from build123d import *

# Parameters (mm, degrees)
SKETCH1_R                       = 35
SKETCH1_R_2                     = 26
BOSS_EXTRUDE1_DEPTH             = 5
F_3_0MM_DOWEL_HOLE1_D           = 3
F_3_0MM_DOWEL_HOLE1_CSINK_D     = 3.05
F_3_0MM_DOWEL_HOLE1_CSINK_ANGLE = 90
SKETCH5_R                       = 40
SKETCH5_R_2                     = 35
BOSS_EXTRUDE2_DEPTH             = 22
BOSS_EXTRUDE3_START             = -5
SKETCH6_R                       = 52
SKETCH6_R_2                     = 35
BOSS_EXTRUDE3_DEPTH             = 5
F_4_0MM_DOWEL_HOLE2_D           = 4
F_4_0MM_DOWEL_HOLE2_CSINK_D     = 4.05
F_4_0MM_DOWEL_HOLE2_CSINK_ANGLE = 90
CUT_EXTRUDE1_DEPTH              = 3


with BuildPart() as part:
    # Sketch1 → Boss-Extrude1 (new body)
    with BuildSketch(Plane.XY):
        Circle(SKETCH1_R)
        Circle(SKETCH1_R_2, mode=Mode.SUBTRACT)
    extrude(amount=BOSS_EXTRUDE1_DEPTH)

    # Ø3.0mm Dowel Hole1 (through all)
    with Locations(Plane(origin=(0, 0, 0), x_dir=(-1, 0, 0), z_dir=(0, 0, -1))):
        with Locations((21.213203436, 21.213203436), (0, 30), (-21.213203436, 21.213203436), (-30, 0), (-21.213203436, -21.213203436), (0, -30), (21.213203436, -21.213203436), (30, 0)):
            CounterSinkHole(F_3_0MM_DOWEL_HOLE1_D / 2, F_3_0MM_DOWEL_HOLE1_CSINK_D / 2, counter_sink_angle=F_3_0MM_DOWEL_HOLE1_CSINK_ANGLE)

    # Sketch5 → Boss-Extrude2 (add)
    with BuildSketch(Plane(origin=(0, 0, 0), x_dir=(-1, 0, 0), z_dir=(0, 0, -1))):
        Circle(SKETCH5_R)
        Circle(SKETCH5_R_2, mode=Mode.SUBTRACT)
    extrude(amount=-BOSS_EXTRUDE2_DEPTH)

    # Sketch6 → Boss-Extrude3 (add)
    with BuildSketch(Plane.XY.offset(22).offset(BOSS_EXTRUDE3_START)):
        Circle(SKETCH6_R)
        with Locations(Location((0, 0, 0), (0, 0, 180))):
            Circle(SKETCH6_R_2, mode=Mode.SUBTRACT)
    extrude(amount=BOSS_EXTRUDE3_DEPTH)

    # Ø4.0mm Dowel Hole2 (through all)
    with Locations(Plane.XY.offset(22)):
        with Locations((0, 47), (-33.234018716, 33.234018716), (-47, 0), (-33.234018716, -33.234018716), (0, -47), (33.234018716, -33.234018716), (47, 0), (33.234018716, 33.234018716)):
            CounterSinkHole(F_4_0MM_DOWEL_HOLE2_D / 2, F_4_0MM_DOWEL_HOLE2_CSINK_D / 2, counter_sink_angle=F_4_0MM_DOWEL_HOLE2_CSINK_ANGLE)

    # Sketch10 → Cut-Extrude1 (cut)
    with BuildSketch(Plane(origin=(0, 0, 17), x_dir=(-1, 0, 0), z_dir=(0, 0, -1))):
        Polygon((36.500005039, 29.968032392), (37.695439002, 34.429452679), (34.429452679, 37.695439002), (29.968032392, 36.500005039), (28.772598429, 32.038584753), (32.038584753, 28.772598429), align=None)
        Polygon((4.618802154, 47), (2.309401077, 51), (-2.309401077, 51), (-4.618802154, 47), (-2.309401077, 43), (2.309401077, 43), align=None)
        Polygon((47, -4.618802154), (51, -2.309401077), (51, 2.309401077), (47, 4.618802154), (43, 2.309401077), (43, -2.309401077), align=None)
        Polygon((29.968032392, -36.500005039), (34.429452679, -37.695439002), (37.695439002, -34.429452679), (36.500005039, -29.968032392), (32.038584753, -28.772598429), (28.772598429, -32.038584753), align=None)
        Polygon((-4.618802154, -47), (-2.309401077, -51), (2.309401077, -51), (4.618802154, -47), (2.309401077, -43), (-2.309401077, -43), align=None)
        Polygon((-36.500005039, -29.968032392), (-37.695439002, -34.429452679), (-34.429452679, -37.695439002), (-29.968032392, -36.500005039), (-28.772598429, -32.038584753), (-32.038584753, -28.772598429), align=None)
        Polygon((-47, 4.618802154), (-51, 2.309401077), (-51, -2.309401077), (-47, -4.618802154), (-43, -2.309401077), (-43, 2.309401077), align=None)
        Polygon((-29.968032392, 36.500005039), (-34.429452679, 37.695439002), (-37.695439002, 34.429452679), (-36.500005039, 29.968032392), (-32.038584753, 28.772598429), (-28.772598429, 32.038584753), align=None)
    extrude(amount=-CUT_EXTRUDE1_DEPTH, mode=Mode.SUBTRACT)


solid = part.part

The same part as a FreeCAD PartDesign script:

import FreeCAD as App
import Part
import Sketcher
Q = App.Units.Quantity

doc = App.newDocument("Part")
params = doc.addObject("Spreadsheet::Sheet", "Params")
for row, (alias, value) in enumerate([
    ("sketch1_diameter", "70 mm"),
    ("sketch1_diameter2", "52 mm"),
    ("pad1_length", "5 mm"),
    ("sketch2_diameter", "3 mm"),
    ("hole_diameter", "3 mm"),
    ("hole_csink_diameter", "3.05 mm"),
    ("sketch3_diameter", "80 mm"),
    ("sketch3_diameter2", "70 mm"),
    ("pad2_length", "22 mm"),
    ("sketch4_diameter", "104 mm"),
    ("sketch4_diameter2", "70 mm"),
    ("pad3_length", "5 mm"),
    ("sketch5_diameter", "4 mm"),
    ("hole2_diameter", "4 mm"),
    ("hole2_csink_diameter", "4.05 mm"),
    ("pocket1_length", "3 mm"),
], start=1):
    params.set(f"A{row}", alias)
    params.set(f"B{row}", "=" + value)
    params.setAlias(f"B{row}", alias)

body = doc.addObject("PartDesign::Body", "Body")

# Sketch on XY plane
sketch1 = body.newObject("Sketcher::SketchObject", "Sketch")
sketch1.AttachmentSupport = (doc.getObject("XY_Plane"), [""])
sketch1.MapMode = "FlatFace"
sketch1.addGeometry(Part.Circle(App.Vector(0, 0, 0), App.Vector(0, 0, 1), 35), False)
sketch1.addGeometry(Part.Circle(App.Vector(0, 0, 0), App.Vector(0, 0, 1), 26), False)
sketch1.addConstraint(Sketcher.Constraint("Coincident", 0, 3, -1, 1))
sketch1.addConstraint(Sketcher.Constraint("Coincident", 1, 3, -1, 1))
sketch1.addConstraint(Sketcher.Constraint("Diameter", 0, Q("70 mm")))
sketch1.addConstraint(Sketcher.Constraint("Diameter", 1, Q("52 mm")))
sketch1.setExpression("Constraints[2]", "Params.sketch1_diameter")
sketch1.setExpression("Constraints[3]", "Params.sketch1_diameter2")
pad1 = body.newObject("PartDesign::Pad", "Pad")
pad1.Profile = sketch1
pad1.setExpression("Length", "Params.pad1_length")

# Sketch on XY plane
sketch2 = body.newObject("Sketcher::SketchObject", "Sketch001")
sketch2.AttachmentSupport = (doc.getObject("XY_Plane"), [""])
sketch2.MapMode = "FlatFace"
sketch2.addGeometry(Part.Circle(App.Vector(-21.2, 21.2, 0), App.Vector(0, 0, 1), 1.5), False)
sketch2.addGeometry(Part.Circle(App.Vector(0, 30, 0), App.Vector(0, 0, 1), 1.5), False)
sketch2.addGeometry(Part.Circle(App.Vector(21.2, 21.2, 0), App.Vector(0, 0, 1), 1.5), False)
sketch2.addGeometry(Part.Circle(App.Vector(30, 0, 0), App.Vector(0, 0, 1), 1.5), False)
sketch2.addGeometry(Part.Circle(App.Vector(21.2, -21.2, 0), App.Vector(0, 0, 1), 1.5), False)
sketch2.addGeometry(Part.Circle(App.Vector(0, -30, 0), App.Vector(0, 0, 1), 1.5), False)
sketch2.addGeometry(Part.Circle(App.Vector(-21.2, -21.2, 0), App.Vector(0, 0, 1), 1.5), False)
sketch2.addGeometry(Part.Circle(App.Vector(-30, 0, 0), App.Vector(0, 0, 1), 1.5), False)
sketch2.addConstraint(Sketcher.Constraint("Equal", 0, 1))
sketch2.addConstraint(Sketcher.Constraint("Equal", 1, 2))
sketch2.addConstraint(Sketcher.Constraint("Equal", 2, 3))
sketch2.addConstraint(Sketcher.Constraint("Equal", 3, 4))
sketch2.addConstraint(Sketcher.Constraint("Equal", 4, 5))
sketch2.addConstraint(Sketcher.Constraint("Equal", 5, 6))
sketch2.addConstraint(Sketcher.Constraint("Equal", 6, 7))
sketch2.addConstraint(Sketcher.Constraint("Symmetric", 0, 3, 4, 3, -1, 1))
sketch2.addConstraint(Sketcher.Constraint("Symmetric", 1, 3, 5, 3, -1, 1))
sketch2.addConstraint(Sketcher.Constraint("Symmetric", 2, 3, 6, 3, -1, 1))
sketch2.addConstraint(Sketcher.Constraint("Symmetric", 3, 3, 7, 3, -1, 1))
sketch2.addConstraint(Sketcher.Constraint("Symmetric", 0, 3, 2, 3, -2))
sketch2.addConstraint(Sketcher.Constraint("PointOnObject", 1, 3, -2))
sketch2.addConstraint(Sketcher.Constraint("PointOnObject", 3, 3, -1))
sketch2.addConstraint(Sketcher.Constraint("Diameter", 0, Q("3 mm")))
sketch2.addConstraint(Sketcher.Constraint("DistanceY", -1, 1, 1, 3, Q("30 mm")))
sketch2.addConstraint(Sketcher.Constraint("DistanceX", -1, 1, 3, 3, Q("30 mm")))
sketch2.addConstraint(Sketcher.Constraint("DistanceX", 0, 3, -1, 1, Q("21.213203 mm")))
sketch2.addConstraint(Sketcher.Constraint("DistanceY", -1, 1, 0, 3, Q("21.213203 mm")))
sketch2.setExpression("Constraints[14]", "Params.sketch2_diameter")
doc.recompute()
hole = body.newObject("PartDesign::Hole", "Hole")
hole.Profile = sketch2
hole.ThreadType = "None"
hole.setExpression("Diameter", "Params.hole_diameter")
hole.DepthType = "ThroughAll"
hole.HoleCutType = "Countersink"
hole.setExpression("HoleCutDiameter", "Params.hole_csink_diameter")
hole.HoleCutCountersinkAngle = 90
hole.Reversed = True

# Sketch on XY plane
sketch3 = body.newObject("Sketcher::SketchObject", "Sketch002")
sketch3.AttachmentSupport = (doc.getObject("XY_Plane"), [""])
sketch3.MapMode = "FlatFace"
sketch3.addGeometry(Part.Circle(App.Vector(0, 0, 0), App.Vector(0, 0, 1), 40), False)
sketch3.addGeometry(Part.Circle(App.Vector(0, 0, 0), App.Vector(0, 0, 1), 35), False)
sketch3.addConstraint(Sketcher.Constraint("Coincident", 0, 3, -1, 1))
sketch3.addConstraint(Sketcher.Constraint("Coincident", 1, 3, -1, 1))
sketch3.addConstraint(Sketcher.Constraint("Diameter", 0, Q("80 mm")))
sketch3.addConstraint(Sketcher.Constraint("Diameter", 1, Q("70 mm")))
sketch3.setExpression("Constraints[2]", "Params.sketch3_diameter")
sketch3.setExpression("Constraints[3]", "Params.sketch3_diameter2")
pad2 = body.newObject("PartDesign::Pad", "Pad001")
pad2.Profile = sketch3
pad2.setExpression("Length", "Params.pad2_length")

# Sketch on XY plane
sketch4 = body.newObject("Sketcher::SketchObject", "Sketch003")
sketch4.AttachmentSupport = (doc.getObject("XY_Plane"), [""])
sketch4.MapMode = "FlatFace"
sketch4.AttachmentOffset = App.Placement(App.Vector(0, 0, 17), App.Rotation())
sketch4.addGeometry(Part.Circle(App.Vector(0, 0, 0), App.Vector(0, 0, 1), 52), False)
sketch4.addGeometry(Part.Circle(App.Vector(0, 0, 0), App.Vector(0, 0, 1), 35), False)
sketch4.addConstraint(Sketcher.Constraint("Coincident", 0, 3, -1, 1))
sketch4.addConstraint(Sketcher.Constraint("Coincident", 1, 3, -1, 1))
sketch4.addConstraint(Sketcher.Constraint("Diameter", 0, Q("104 mm")))
sketch4.addConstraint(Sketcher.Constraint("Diameter", 1, Q("70 mm")))
sketch4.setExpression("Constraints[2]", "Params.sketch4_diameter")
sketch4.setExpression("Constraints[3]", "Params.sketch4_diameter2")
pad3 = body.newObject("PartDesign::Pad", "Pad002")
pad3.Profile = sketch4
pad3.setExpression("Length", "Params.pad3_length")

# Sketch on XY plane
sketch5 = body.newObject("Sketcher::SketchObject", "Sketch004")
sketch5.AttachmentSupport = (doc.getObject("XY_Plane"), [""])
sketch5.MapMode = "FlatFace"
sketch5.AttachmentOffset = App.Placement(App.Vector(0, 0, 22), App.Rotation())
sketch5.addGeometry(Part.Circle(App.Vector(0, 47, 0), App.Vector(0, 0, 1), 2), False)
sketch5.addGeometry(Part.Circle(App.Vector(-33.2, 33.2, 0), App.Vector(0, 0, 1), 2), False)
sketch5.addGeometry(Part.Circle(App.Vector(-47, 0, 0), App.Vector(0, 0, 1), 2), False)
sketch5.addGeometry(Part.Circle(App.Vector(-33.2, -33.2, 0), App.Vector(0, 0, 1), 2), False)
sketch5.addGeometry(Part.Circle(App.Vector(0, -47, 0), App.Vector(0, 0, 1), 2), False)
sketch5.addGeometry(Part.Circle(App.Vector(33.2, -33.2, 0), App.Vector(0, 0, 1), 2), False)
sketch5.addGeometry(Part.Circle(App.Vector(47, 0, 0), App.Vector(0, 0, 1), 2), False)
sketch5.addGeometry(Part.Circle(App.Vector(33.2, 33.2, 0), App.Vector(0, 0, 1), 2), False)
sketch5.addConstraint(Sketcher.Constraint("Equal", 0, 1))
sketch5.addConstraint(Sketcher.Constraint("Equal", 1, 2))
sketch5.addConstraint(Sketcher.Constraint("Equal", 2, 3))
sketch5.addConstraint(Sketcher.Constraint("Equal", 3, 4))
sketch5.addConstraint(Sketcher.Constraint("Equal", 4, 5))
sketch5.addConstraint(Sketcher.Constraint("Equal", 5, 6))
sketch5.addConstraint(Sketcher.Constraint("Equal", 6, 7))
sketch5.addConstraint(Sketcher.Constraint("Symmetric", 0, 3, 4, 3, -1, 1))
sketch5.addConstraint(Sketcher.Constraint("Symmetric", 1, 3, 5, 3, -1, 1))
sketch5.addConstraint(Sketcher.Constraint("Symmetric", 2, 3, 6, 3, -1, 1))
sketch5.addConstraint(Sketcher.Constraint("Symmetric", 3, 3, 7, 3, -1, 1))
sketch5.addConstraint(Sketcher.Constraint("Symmetric", 3, 3, 5, 3, -2))
sketch5.addConstraint(Sketcher.Constraint("PointOnObject", 0, 3, -2))
sketch5.addConstraint(Sketcher.Constraint("PointOnObject", 2, 3, -1))
sketch5.addConstraint(Sketcher.Constraint("Diameter", 0, Q("4 mm")))
sketch5.addConstraint(Sketcher.Constraint("DistanceY", -1, 1, 0, 3, Q("47 mm")))
sketch5.addConstraint(Sketcher.Constraint("DistanceX", 2, 3, -1, 1, Q("47 mm")))
sketch5.addConstraint(Sketcher.Constraint("DistanceX", 1, 3, -1, 1, Q("33.234019 mm")))
sketch5.addConstraint(Sketcher.Constraint("DistanceY", -1, 1, 1, 3, Q("33.234019 mm")))
sketch5.setExpression("Constraints[14]", "Params.sketch5_diameter")
doc.recompute()
hole2 = body.newObject("PartDesign::Hole", "Hole001")
hole2.Profile = sketch5
hole2.ThreadType = "None"
hole2.setExpression("Diameter", "Params.hole2_diameter")
hole2.DepthType = "ThroughAll"
hole2.HoleCutType = "Countersink"
hole2.setExpression("HoleCutDiameter", "Params.hole2_csink_diameter")
hole2.HoleCutCountersinkAngle = 90

# Sketch on XY plane
sketch6 = body.newObject("Sketcher::SketchObject", "Sketch005")
sketch6.AttachmentSupport = (doc.getObject("XY_Plane"), [""])
sketch6.MapMode = "FlatFace"
sketch6.AttachmentOffset = App.Placement(App.Vector(0, 0, 17), App.Rotation())
sketch6.addGeometry(Part.LineSegment(App.Vector(-36.5, 30, 0), App.Vector(-37.7, 34.4, 0)), False)
sketch6.addGeometry(Part.LineSegment(App.Vector(-37.7, 34.4, 0), App.Vector(-34.4, 37.7, 0)), False)
sketch6.addGeometry(Part.LineSegment(App.Vector(-34.4, 37.7, 0), App.Vector(-30, 36.5, 0)), False)
sketch6.addGeometry(Part.LineSegment(App.Vector(-30, 36.5, 0), App.Vector(-28.8, 32, 0)), False)
sketch6.addGeometry(Part.LineSegment(App.Vector(-28.8, 32, 0), App.Vector(-32, 28.8, 0)), False)
sketch6.addGeometry(Part.LineSegment(App.Vector(-32, 28.8, 0), App.Vector(-36.5, 30, 0)), False)
sketch6.addGeometry(Part.LineSegment(App.Vector(-4.6, 47, 0), App.Vector(-2.3, 51, 0)), False)
sketch6.addGeometry(Part.LineSegment(App.Vector(-2.3, 51, 0), App.Vector(2.3, 51, 0)), False)
sketch6.addGeometry(Part.LineSegment(App.Vector(2.3, 51, 0), App.Vector(4.6, 47, 0)), False)
sketch6.addGeometry(Part.LineSegment(App.Vector(4.6, 47, 0), App.Vector(2.3, 43, 0)), False)
sketch6.addGeometry(Part.LineSegment(App.Vector(2.3, 43, 0), App.Vector(-2.3, 43, 0)), False)
sketch6.addGeometry(Part.LineSegment(App.Vector(-2.3, 43, 0), App.Vector(-4.6, 47, 0)), False)
sketch6.addGeometry(Part.LineSegment(App.Vector(-47, -4.6, 0), App.Vector(-51, -2.3, 0)), False)
sketch6.addGeometry(Part.LineSegment(App.Vector(-51, -2.3, 0), App.Vector(-51, 2.3, 0)), False)
sketch6.addGeometry(Part.LineSegment(App.Vector(-51, 2.3, 0), App.Vector(-47, 4.6, 0)), False)
sketch6.addGeometry(Part.LineSegment(App.Vector(-47, 4.6, 0), App.Vector(-43, 2.3, 0)), False)
sketch6.addGeometry(Part.LineSegment(App.Vector(-43, 2.3, 0), App.Vector(-43, -2.3, 0)), False)
sketch6.addGeometry(Part.LineSegment(App.Vector(-43, -2.3, 0), App.Vector(-47, -4.6, 0)), False)
sketch6.addGeometry(Part.LineSegment(App.Vector(-30, -36.5, 0), App.Vector(-34.4, -37.7, 0)), False)
sketch6.addGeometry(Part.LineSegment(App.Vector(-34.4, -37.7, 0), App.Vector(-37.7, -34.4, 0)), False)
sketch6.addGeometry(Part.LineSegment(App.Vector(-37.7, -34.4, 0), App.Vector(-36.5, -30, 0)), False)
sketch6.addGeometry(Part.LineSegment(App.Vector(-36.5, -30, 0), App.Vector(-32, -28.8, 0)), False)
sketch6.addGeometry(Part.LineSegment(App.Vector(-32, -28.8, 0), App.Vector(-28.8, -32, 0)), False)
sketch6.addGeometry(Part.LineSegment(App.Vector(-28.8, -32, 0), App.Vector(-30, -36.5, 0)), False)
sketch6.addGeometry(Part.LineSegment(App.Vector(4.6, -47, 0), App.Vector(2.3, -51, 0)), False)
sketch6.addGeometry(Part.LineSegment(App.Vector(2.3, -51, 0), App.Vector(-2.3, -51, 0)), False)
sketch6.addGeometry(Part.LineSegment(App.Vector(-2.3, -51, 0), App.Vector(-4.6, -47, 0)), False)
sketch6.addGeometry(Part.LineSegment(App.Vector(-4.6, -47, 0), App.Vector(-2.3, -43, 0)), False)
sketch6.addGeometry(Part.LineSegment(App.Vector(-2.3, -43, 0), App.Vector(2.3, -43, 0)), False)
sketch6.addGeometry(Part.LineSegment(App.Vector(2.3, -43, 0), App.Vector(4.6, -47, 0)), False)
sketch6.addGeometry(Part.LineSegment(App.Vector(36.5, -30, 0), App.Vector(37.7, -34.4, 0)), False)
sketch6.addGeometry(Part.LineSegment(App.Vector(37.7, -34.4, 0), App.Vector(34.4, -37.7, 0)), False)
sketch6.addGeometry(Part.LineSegment(App.Vector(34.4, -37.7, 0), App.Vector(30, -36.5, 0)), False)
sketch6.addGeometry(Part.LineSegment(App.Vector(30, -36.5, 0), App.Vector(28.8, -32, 0)), False)
sketch6.addGeometry(Part.LineSegment(App.Vector(28.8, -32, 0), App.Vector(32, -28.8, 0)), False)
sketch6.addGeometry(Part.LineSegment(App.Vector(32, -28.8, 0), App.Vector(36.5, -30, 0)), False)
sketch6.addGeometry(Part.LineSegment(App.Vector(47, 4.6, 0), App.Vector(51, 2.3, 0)), False)
sketch6.addGeometry(Part.LineSegment(App.Vector(51, 2.3, 0), App.Vector(51, -2.3, 0)), False)
sketch6.addGeometry(Part.LineSegment(App.Vector(51, -2.3, 0), App.Vector(47, -4.6, 0)), False)
sketch6.addGeometry(Part.LineSegment(App.Vector(47, -4.6, 0), App.Vector(43, -2.3, 0)), False)
sketch6.addGeometry(Part.LineSegment(App.Vector(43, -2.3, 0), App.Vector(43, 2.3, 0)), False)
sketch6.addGeometry(Part.LineSegment(App.Vector(43, 2.3, 0), App.Vector(47, 4.6, 0)), False)
sketch6.addGeometry(Part.LineSegment(App.Vector(30, 36.5, 0), App.Vector(34.4, 37.7, 0)), False)
sketch6.addGeometry(Part.LineSegment(App.Vector(34.4, 37.7, 0), App.Vector(37.7, 34.4, 0)), False)
sketch6.addGeometry(Part.LineSegment(App.Vector(37.7, 34.4, 0), App.Vector(36.5, 30, 0)), False)
sketch6.addGeometry(Part.LineSegment(App.Vector(36.5, 30, 0), App.Vector(32, 28.8, 0)), False)
sketch6.addGeometry(Part.LineSegment(App.Vector(32, 28.8, 0), App.Vector(28.8, 32, 0)), False)
sketch6.addGeometry(Part.LineSegment(App.Vector(28.8, 32, 0), App.Vector(30, 36.5, 0)), False)
sketch6.addConstraint(Sketcher.Constraint("Coincident", 0, 2, 1, 1))
sketch6.addConstraint(Sketcher.Constraint("Coincident", 1, 2, 2, 1))
sketch6.addConstraint(Sketcher.Constraint("Coincident", 2, 2, 3, 1))
sketch6.addConstraint(Sketcher.Constraint("Coincident", 3, 2, 4, 1))
sketch6.addConstraint(Sketcher.Constraint("Coincident", 4, 2, 5, 1))
sketch6.addConstraint(Sketcher.Constraint("Coincident", 5, 2, 0, 1))
sketch6.addConstraint(Sketcher.Constraint("Coincident", 6, 2, 7, 1))
sketch6.addConstraint(Sketcher.Constraint("Coincident", 7, 2, 8, 1))
sketch6.addConstraint(Sketcher.Constraint("Coincident", 8, 2, 9, 1))
sketch6.addConstraint(Sketcher.Constraint("Coincident", 9, 2, 10, 1))
sketch6.addConstraint(Sketcher.Constraint("Coincident", 10, 2, 11, 1))
sketch6.addConstraint(Sketcher.Constraint("Coincident", 11, 2, 6, 1))
sketch6.addConstraint(Sketcher.Constraint("Coincident", 12, 2, 13, 1))
sketch6.addConstraint(Sketcher.Constraint("Coincident", 13, 2, 14, 1))
sketch6.addConstraint(Sketcher.Constraint("Coincident", 14, 2, 15, 1))
sketch6.addConstraint(Sketcher.Constraint("Coincident", 15, 2, 16, 1))
sketch6.addConstraint(Sketcher.Constraint("Coincident", 16, 2, 17, 1))
sketch6.addConstraint(Sketcher.Constraint("Coincident", 17, 2, 12, 1))
sketch6.addConstraint(Sketcher.Constraint("Coincident", 18, 2, 19, 1))
sketch6.addConstraint(Sketcher.Constraint("Coincident", 19, 2, 20, 1))
sketch6.addConstraint(Sketcher.Constraint("Coincident", 20, 2, 21, 1))
sketch6.addConstraint(Sketcher.Constraint("Coincident", 21, 2, 22, 1))
sketch6.addConstraint(Sketcher.Constraint("Coincident", 22, 2, 23, 1))
sketch6.addConstraint(Sketcher.Constraint("Coincident", 23, 2, 18, 1))
sketch6.addConstraint(Sketcher.Constraint("Coincident", 24, 2, 25, 1))
sketch6.addConstraint(Sketcher.Constraint("Coincident", 25, 2, 26, 1))
sketch6.addConstraint(Sketcher.Constraint("Coincident", 26, 2, 27, 1))
sketch6.addConstraint(Sketcher.Constraint("Coincident", 27, 2, 28, 1))
sketch6.addConstraint(Sketcher.Constraint("Coincident", 28, 2, 29, 1))
sketch6.addConstraint(Sketcher.Constraint("Coincident", 29, 2, 24, 1))
sketch6.addConstraint(Sketcher.Constraint("Coincident", 30, 2, 31, 1))
sketch6.addConstraint(Sketcher.Constraint("Coincident", 31, 2, 32, 1))
sketch6.addConstraint(Sketcher.Constraint("Coincident", 32, 2, 33, 1))
sketch6.addConstraint(Sketcher.Constraint("Coincident", 33, 2, 34, 1))
sketch6.addConstraint(Sketcher.Constraint("Coincident", 34, 2, 35, 1))
sketch6.addConstraint(Sketcher.Constraint("Coincident", 35, 2, 30, 1))
sketch6.addConstraint(Sketcher.Constraint("Coincident", 36, 2, 37, 1))
sketch6.addConstraint(Sketcher.Constraint("Coincident", 37, 2, 38, 1))
sketch6.addConstraint(Sketcher.Constraint("Coincident", 38, 2, 39, 1))
sketch6.addConstraint(Sketcher.Constraint("Coincident", 39, 2, 40, 1))
sketch6.addConstraint(Sketcher.Constraint("Coincident", 40, 2, 41, 1))
sketch6.addConstraint(Sketcher.Constraint("Coincident", 41, 2, 36, 1))
sketch6.addConstraint(Sketcher.Constraint("Coincident", 42, 2, 43, 1))
sketch6.addConstraint(Sketcher.Constraint("Coincident", 43, 2, 44, 1))
sketch6.addConstraint(Sketcher.Constraint("Coincident", 44, 2, 45, 1))
sketch6.addConstraint(Sketcher.Constraint("Coincident", 45, 2, 46, 1))
sketch6.addConstraint(Sketcher.Constraint("Coincident", 46, 2, 47, 1))
sketch6.addConstraint(Sketcher.Constraint("Coincident", 47, 2, 42, 1))
sketch6.addConstraint(Sketcher.Constraint("Horizontal", 7))
sketch6.addConstraint(Sketcher.Constraint("Horizontal", 10))
sketch6.addConstraint(Sketcher.Constraint("Vertical", 13))
sketch6.addConstraint(Sketcher.Constraint("Vertical", 16))
sketch6.addConstraint(Sketcher.Constraint("Horizontal", 25))
sketch6.addConstraint(Sketcher.Constraint("Horizontal", 28))
sketch6.addConstraint(Sketcher.Constraint("Vertical", 37))
sketch6.addConstraint(Sketcher.Constraint("Vertical", 40))
sketch6.addConstraint(Sketcher.Constraint("Symmetric", 6, 2, 24, 2, -1, 1))
sketch6.addConstraint(Sketcher.Constraint("Symmetric", 8, 2, 26, 2, -1, 1))
sketch6.addConstraint(Sketcher.Constraint("Symmetric", 9, 2, 27, 2, -1, 1))
sketch6.addConstraint(Sketcher.Constraint("Symmetric", 11, 2, 29, 2, -1, 1))
sketch6.addConstraint(Sketcher.Constraint("Symmetric", 0, 2, 30, 2, -1, 1))
sketch6.addConstraint(Sketcher.Constraint("Symmetric", 1, 2, 31, 2, -1, 1))
sketch6.addConstraint(Sketcher.Constraint("Symmetric", 2, 2, 32, 2, -1, 1))
sketch6.addConstraint(Sketcher.Constraint("Symmetric", 3, 2, 33, 2, -1, 1))
sketch6.addConstraint(Sketcher.Constraint("Symmetric", 4, 2, 34, 2, -1, 1))
sketch6.addConstraint(Sketcher.Constraint("Symmetric", 5, 2, 35, 2, -1, 1))
sketch6.addConstraint(Sketcher.Constraint("Symmetric", 12, 2, 36, 2, -1, 1))
sketch6.addConstraint(Sketcher.Constraint("Symmetric", 14, 2, 38, 2, -1, 1))
sketch6.addConstraint(Sketcher.Constraint("Symmetric", 15, 2, 39, 2, -1, 1))
sketch6.addConstraint(Sketcher.Constraint("Symmetric", 17, 2, 41, 2, -1, 1))
sketch6.addConstraint(Sketcher.Constraint("Symmetric", 18, 2, 42, 2, -1, 1))
sketch6.addConstraint(Sketcher.Constraint("Symmetric", 19, 2, 43, 2, -1, 1))
sketch6.addConstraint(Sketcher.Constraint("Symmetric", 20, 2, 44, 2, -1, 1))
sketch6.addConstraint(Sketcher.Constraint("Symmetric", 21, 2, 45, 2, -1, 1))
sketch6.addConstraint(Sketcher.Constraint("Symmetric", 22, 2, 46, 2, -1, 1))
sketch6.addConstraint(Sketcher.Constraint("Symmetric", 23, 2, 47, 2, -1, 1))
sketch6.addConstraint(Sketcher.Constraint("Symmetric", 8, 2, 11, 2, -2))
sketch6.addConstraint(Sketcher.Constraint("Symmetric", 19, 2, 30, 2, -2))
sketch6.addConstraint(Sketcher.Constraint("Symmetric", 18, 2, 31, 2, -2))
sketch6.addConstraint(Sketcher.Constraint("Symmetric", 23, 2, 32, 2, -2))
sketch6.addConstraint(Sketcher.Constraint("Symmetric", 22, 2, 33, 2, -2))
sketch6.addConstraint(Sketcher.Constraint("Symmetric", 21, 2, 34, 2, -2))
sketch6.addConstraint(Sketcher.Constraint("Symmetric", 20, 2, 35, 2, -2))
sketch6.addConstraint(Sketcher.Constraint("Symmetric", 17, 2, 38, 2, -2))
sketch6.addConstraint(Sketcher.Constraint("Parallel", 0, 3))
sketch6.addConstraint(Sketcher.Constraint("Parallel", 1, 4))
sketch6.addConstraint(Sketcher.Constraint("Parallel", 2, 5))
sketch6.addConstraint(Sketcher.Constraint("Parallel", 6, 9))
sketch6.addConstraint(Sketcher.Constraint("Parallel", 8, 11))
sketch6.addConstraint(Sketcher.Constraint("Perpendicular", 9, 12))
sketch6.addConstraint(Sketcher.Constraint("Perpendicular", 11, 14))
sketch6.addConstraint(Sketcher.Constraint("Parallel", 12, 15))
sketch6.addConstraint(Sketcher.Constraint("Parallel", 14, 17))
sketch6.addConstraint(Sketcher.Constraint("Perpendicular", 3, 18))
sketch6.addConstraint(Sketcher.Constraint("Perpendicular", 4, 19))
sketch6.addConstraint(Sketcher.Constraint("Perpendicular", 17, 26))
sketch6.addConstraint(Sketcher.Constraint("Parallel", 26, 29))
sketch6.addConstraint(Sketcher.Constraint("Perpendicular", 29, 38))
sketch6.addConstraint(Sketcher.Constraint("Parallel", 38, 41))
sketch6.addConstraint(Sketcher.Constraint("Horizontal", 13, 2, 15, 2))
sketch6.addConstraint(Sketcher.Constraint("Horizontal", 12, 2, 16, 2))
sketch6.addConstraint(Sketcher.Constraint("Vertical", 7, 2, 9, 2))
sketch6.addConstraint(Sketcher.Constraint("Equal", 28, 13))
sketch6.addConstraint(Sketcher.Constraint("Equal", 0, 1))
sketch6.addConstraint(Sketcher.Constraint("Equal", 1, 2))
sketch6.addConstraint(Sketcher.Constraint("Equal", 2, 3))
sketch6.addConstraint(Sketcher.Constraint("Equal", 5, 6))
sketch6.addConstraint(Sketcher.Constraint("Equal", 11, 12))
sketch6.addConstraint(Sketcher.Constraint("Angle", 0, Q("105 deg")))
sketch6.addConstraint(Sketcher.Constraint("Angle", 6, Q("60 deg")))
sketch6.addConstraint(Sketcher.Constraint("DistanceY", -1, 1, 6, 2, Q("51 mm")))
sketch6.addConstraint(Sketcher.Constraint("DistanceY", -1, 1, 8, 2, Q("47 mm")))
sketch6.addConstraint(Sketcher.Constraint("DistanceX", 12, 2, -1, 1, Q("51 mm")))
sketch6.addConstraint(Sketcher.Constraint("DistanceX", 3, 2, 7, 2, Q("31.082 mm")))
sketch6.addConstraint(Sketcher.Constraint("DistanceY", 12, 2, 4, 2, Q("31.082 mm")))
sketch6.addConstraint(Sketcher.Constraint("DistanceX", 3, 2, -1, 1, Q("28.772598 mm")))
pocket1 = body.newObject("PartDesign::Pocket", "Pocket")
pocket1.Profile = sketch6
pocket1.setExpression("Length", "Params.pocket1_length")
pocket1.Reversed = True

doc.recompute()
